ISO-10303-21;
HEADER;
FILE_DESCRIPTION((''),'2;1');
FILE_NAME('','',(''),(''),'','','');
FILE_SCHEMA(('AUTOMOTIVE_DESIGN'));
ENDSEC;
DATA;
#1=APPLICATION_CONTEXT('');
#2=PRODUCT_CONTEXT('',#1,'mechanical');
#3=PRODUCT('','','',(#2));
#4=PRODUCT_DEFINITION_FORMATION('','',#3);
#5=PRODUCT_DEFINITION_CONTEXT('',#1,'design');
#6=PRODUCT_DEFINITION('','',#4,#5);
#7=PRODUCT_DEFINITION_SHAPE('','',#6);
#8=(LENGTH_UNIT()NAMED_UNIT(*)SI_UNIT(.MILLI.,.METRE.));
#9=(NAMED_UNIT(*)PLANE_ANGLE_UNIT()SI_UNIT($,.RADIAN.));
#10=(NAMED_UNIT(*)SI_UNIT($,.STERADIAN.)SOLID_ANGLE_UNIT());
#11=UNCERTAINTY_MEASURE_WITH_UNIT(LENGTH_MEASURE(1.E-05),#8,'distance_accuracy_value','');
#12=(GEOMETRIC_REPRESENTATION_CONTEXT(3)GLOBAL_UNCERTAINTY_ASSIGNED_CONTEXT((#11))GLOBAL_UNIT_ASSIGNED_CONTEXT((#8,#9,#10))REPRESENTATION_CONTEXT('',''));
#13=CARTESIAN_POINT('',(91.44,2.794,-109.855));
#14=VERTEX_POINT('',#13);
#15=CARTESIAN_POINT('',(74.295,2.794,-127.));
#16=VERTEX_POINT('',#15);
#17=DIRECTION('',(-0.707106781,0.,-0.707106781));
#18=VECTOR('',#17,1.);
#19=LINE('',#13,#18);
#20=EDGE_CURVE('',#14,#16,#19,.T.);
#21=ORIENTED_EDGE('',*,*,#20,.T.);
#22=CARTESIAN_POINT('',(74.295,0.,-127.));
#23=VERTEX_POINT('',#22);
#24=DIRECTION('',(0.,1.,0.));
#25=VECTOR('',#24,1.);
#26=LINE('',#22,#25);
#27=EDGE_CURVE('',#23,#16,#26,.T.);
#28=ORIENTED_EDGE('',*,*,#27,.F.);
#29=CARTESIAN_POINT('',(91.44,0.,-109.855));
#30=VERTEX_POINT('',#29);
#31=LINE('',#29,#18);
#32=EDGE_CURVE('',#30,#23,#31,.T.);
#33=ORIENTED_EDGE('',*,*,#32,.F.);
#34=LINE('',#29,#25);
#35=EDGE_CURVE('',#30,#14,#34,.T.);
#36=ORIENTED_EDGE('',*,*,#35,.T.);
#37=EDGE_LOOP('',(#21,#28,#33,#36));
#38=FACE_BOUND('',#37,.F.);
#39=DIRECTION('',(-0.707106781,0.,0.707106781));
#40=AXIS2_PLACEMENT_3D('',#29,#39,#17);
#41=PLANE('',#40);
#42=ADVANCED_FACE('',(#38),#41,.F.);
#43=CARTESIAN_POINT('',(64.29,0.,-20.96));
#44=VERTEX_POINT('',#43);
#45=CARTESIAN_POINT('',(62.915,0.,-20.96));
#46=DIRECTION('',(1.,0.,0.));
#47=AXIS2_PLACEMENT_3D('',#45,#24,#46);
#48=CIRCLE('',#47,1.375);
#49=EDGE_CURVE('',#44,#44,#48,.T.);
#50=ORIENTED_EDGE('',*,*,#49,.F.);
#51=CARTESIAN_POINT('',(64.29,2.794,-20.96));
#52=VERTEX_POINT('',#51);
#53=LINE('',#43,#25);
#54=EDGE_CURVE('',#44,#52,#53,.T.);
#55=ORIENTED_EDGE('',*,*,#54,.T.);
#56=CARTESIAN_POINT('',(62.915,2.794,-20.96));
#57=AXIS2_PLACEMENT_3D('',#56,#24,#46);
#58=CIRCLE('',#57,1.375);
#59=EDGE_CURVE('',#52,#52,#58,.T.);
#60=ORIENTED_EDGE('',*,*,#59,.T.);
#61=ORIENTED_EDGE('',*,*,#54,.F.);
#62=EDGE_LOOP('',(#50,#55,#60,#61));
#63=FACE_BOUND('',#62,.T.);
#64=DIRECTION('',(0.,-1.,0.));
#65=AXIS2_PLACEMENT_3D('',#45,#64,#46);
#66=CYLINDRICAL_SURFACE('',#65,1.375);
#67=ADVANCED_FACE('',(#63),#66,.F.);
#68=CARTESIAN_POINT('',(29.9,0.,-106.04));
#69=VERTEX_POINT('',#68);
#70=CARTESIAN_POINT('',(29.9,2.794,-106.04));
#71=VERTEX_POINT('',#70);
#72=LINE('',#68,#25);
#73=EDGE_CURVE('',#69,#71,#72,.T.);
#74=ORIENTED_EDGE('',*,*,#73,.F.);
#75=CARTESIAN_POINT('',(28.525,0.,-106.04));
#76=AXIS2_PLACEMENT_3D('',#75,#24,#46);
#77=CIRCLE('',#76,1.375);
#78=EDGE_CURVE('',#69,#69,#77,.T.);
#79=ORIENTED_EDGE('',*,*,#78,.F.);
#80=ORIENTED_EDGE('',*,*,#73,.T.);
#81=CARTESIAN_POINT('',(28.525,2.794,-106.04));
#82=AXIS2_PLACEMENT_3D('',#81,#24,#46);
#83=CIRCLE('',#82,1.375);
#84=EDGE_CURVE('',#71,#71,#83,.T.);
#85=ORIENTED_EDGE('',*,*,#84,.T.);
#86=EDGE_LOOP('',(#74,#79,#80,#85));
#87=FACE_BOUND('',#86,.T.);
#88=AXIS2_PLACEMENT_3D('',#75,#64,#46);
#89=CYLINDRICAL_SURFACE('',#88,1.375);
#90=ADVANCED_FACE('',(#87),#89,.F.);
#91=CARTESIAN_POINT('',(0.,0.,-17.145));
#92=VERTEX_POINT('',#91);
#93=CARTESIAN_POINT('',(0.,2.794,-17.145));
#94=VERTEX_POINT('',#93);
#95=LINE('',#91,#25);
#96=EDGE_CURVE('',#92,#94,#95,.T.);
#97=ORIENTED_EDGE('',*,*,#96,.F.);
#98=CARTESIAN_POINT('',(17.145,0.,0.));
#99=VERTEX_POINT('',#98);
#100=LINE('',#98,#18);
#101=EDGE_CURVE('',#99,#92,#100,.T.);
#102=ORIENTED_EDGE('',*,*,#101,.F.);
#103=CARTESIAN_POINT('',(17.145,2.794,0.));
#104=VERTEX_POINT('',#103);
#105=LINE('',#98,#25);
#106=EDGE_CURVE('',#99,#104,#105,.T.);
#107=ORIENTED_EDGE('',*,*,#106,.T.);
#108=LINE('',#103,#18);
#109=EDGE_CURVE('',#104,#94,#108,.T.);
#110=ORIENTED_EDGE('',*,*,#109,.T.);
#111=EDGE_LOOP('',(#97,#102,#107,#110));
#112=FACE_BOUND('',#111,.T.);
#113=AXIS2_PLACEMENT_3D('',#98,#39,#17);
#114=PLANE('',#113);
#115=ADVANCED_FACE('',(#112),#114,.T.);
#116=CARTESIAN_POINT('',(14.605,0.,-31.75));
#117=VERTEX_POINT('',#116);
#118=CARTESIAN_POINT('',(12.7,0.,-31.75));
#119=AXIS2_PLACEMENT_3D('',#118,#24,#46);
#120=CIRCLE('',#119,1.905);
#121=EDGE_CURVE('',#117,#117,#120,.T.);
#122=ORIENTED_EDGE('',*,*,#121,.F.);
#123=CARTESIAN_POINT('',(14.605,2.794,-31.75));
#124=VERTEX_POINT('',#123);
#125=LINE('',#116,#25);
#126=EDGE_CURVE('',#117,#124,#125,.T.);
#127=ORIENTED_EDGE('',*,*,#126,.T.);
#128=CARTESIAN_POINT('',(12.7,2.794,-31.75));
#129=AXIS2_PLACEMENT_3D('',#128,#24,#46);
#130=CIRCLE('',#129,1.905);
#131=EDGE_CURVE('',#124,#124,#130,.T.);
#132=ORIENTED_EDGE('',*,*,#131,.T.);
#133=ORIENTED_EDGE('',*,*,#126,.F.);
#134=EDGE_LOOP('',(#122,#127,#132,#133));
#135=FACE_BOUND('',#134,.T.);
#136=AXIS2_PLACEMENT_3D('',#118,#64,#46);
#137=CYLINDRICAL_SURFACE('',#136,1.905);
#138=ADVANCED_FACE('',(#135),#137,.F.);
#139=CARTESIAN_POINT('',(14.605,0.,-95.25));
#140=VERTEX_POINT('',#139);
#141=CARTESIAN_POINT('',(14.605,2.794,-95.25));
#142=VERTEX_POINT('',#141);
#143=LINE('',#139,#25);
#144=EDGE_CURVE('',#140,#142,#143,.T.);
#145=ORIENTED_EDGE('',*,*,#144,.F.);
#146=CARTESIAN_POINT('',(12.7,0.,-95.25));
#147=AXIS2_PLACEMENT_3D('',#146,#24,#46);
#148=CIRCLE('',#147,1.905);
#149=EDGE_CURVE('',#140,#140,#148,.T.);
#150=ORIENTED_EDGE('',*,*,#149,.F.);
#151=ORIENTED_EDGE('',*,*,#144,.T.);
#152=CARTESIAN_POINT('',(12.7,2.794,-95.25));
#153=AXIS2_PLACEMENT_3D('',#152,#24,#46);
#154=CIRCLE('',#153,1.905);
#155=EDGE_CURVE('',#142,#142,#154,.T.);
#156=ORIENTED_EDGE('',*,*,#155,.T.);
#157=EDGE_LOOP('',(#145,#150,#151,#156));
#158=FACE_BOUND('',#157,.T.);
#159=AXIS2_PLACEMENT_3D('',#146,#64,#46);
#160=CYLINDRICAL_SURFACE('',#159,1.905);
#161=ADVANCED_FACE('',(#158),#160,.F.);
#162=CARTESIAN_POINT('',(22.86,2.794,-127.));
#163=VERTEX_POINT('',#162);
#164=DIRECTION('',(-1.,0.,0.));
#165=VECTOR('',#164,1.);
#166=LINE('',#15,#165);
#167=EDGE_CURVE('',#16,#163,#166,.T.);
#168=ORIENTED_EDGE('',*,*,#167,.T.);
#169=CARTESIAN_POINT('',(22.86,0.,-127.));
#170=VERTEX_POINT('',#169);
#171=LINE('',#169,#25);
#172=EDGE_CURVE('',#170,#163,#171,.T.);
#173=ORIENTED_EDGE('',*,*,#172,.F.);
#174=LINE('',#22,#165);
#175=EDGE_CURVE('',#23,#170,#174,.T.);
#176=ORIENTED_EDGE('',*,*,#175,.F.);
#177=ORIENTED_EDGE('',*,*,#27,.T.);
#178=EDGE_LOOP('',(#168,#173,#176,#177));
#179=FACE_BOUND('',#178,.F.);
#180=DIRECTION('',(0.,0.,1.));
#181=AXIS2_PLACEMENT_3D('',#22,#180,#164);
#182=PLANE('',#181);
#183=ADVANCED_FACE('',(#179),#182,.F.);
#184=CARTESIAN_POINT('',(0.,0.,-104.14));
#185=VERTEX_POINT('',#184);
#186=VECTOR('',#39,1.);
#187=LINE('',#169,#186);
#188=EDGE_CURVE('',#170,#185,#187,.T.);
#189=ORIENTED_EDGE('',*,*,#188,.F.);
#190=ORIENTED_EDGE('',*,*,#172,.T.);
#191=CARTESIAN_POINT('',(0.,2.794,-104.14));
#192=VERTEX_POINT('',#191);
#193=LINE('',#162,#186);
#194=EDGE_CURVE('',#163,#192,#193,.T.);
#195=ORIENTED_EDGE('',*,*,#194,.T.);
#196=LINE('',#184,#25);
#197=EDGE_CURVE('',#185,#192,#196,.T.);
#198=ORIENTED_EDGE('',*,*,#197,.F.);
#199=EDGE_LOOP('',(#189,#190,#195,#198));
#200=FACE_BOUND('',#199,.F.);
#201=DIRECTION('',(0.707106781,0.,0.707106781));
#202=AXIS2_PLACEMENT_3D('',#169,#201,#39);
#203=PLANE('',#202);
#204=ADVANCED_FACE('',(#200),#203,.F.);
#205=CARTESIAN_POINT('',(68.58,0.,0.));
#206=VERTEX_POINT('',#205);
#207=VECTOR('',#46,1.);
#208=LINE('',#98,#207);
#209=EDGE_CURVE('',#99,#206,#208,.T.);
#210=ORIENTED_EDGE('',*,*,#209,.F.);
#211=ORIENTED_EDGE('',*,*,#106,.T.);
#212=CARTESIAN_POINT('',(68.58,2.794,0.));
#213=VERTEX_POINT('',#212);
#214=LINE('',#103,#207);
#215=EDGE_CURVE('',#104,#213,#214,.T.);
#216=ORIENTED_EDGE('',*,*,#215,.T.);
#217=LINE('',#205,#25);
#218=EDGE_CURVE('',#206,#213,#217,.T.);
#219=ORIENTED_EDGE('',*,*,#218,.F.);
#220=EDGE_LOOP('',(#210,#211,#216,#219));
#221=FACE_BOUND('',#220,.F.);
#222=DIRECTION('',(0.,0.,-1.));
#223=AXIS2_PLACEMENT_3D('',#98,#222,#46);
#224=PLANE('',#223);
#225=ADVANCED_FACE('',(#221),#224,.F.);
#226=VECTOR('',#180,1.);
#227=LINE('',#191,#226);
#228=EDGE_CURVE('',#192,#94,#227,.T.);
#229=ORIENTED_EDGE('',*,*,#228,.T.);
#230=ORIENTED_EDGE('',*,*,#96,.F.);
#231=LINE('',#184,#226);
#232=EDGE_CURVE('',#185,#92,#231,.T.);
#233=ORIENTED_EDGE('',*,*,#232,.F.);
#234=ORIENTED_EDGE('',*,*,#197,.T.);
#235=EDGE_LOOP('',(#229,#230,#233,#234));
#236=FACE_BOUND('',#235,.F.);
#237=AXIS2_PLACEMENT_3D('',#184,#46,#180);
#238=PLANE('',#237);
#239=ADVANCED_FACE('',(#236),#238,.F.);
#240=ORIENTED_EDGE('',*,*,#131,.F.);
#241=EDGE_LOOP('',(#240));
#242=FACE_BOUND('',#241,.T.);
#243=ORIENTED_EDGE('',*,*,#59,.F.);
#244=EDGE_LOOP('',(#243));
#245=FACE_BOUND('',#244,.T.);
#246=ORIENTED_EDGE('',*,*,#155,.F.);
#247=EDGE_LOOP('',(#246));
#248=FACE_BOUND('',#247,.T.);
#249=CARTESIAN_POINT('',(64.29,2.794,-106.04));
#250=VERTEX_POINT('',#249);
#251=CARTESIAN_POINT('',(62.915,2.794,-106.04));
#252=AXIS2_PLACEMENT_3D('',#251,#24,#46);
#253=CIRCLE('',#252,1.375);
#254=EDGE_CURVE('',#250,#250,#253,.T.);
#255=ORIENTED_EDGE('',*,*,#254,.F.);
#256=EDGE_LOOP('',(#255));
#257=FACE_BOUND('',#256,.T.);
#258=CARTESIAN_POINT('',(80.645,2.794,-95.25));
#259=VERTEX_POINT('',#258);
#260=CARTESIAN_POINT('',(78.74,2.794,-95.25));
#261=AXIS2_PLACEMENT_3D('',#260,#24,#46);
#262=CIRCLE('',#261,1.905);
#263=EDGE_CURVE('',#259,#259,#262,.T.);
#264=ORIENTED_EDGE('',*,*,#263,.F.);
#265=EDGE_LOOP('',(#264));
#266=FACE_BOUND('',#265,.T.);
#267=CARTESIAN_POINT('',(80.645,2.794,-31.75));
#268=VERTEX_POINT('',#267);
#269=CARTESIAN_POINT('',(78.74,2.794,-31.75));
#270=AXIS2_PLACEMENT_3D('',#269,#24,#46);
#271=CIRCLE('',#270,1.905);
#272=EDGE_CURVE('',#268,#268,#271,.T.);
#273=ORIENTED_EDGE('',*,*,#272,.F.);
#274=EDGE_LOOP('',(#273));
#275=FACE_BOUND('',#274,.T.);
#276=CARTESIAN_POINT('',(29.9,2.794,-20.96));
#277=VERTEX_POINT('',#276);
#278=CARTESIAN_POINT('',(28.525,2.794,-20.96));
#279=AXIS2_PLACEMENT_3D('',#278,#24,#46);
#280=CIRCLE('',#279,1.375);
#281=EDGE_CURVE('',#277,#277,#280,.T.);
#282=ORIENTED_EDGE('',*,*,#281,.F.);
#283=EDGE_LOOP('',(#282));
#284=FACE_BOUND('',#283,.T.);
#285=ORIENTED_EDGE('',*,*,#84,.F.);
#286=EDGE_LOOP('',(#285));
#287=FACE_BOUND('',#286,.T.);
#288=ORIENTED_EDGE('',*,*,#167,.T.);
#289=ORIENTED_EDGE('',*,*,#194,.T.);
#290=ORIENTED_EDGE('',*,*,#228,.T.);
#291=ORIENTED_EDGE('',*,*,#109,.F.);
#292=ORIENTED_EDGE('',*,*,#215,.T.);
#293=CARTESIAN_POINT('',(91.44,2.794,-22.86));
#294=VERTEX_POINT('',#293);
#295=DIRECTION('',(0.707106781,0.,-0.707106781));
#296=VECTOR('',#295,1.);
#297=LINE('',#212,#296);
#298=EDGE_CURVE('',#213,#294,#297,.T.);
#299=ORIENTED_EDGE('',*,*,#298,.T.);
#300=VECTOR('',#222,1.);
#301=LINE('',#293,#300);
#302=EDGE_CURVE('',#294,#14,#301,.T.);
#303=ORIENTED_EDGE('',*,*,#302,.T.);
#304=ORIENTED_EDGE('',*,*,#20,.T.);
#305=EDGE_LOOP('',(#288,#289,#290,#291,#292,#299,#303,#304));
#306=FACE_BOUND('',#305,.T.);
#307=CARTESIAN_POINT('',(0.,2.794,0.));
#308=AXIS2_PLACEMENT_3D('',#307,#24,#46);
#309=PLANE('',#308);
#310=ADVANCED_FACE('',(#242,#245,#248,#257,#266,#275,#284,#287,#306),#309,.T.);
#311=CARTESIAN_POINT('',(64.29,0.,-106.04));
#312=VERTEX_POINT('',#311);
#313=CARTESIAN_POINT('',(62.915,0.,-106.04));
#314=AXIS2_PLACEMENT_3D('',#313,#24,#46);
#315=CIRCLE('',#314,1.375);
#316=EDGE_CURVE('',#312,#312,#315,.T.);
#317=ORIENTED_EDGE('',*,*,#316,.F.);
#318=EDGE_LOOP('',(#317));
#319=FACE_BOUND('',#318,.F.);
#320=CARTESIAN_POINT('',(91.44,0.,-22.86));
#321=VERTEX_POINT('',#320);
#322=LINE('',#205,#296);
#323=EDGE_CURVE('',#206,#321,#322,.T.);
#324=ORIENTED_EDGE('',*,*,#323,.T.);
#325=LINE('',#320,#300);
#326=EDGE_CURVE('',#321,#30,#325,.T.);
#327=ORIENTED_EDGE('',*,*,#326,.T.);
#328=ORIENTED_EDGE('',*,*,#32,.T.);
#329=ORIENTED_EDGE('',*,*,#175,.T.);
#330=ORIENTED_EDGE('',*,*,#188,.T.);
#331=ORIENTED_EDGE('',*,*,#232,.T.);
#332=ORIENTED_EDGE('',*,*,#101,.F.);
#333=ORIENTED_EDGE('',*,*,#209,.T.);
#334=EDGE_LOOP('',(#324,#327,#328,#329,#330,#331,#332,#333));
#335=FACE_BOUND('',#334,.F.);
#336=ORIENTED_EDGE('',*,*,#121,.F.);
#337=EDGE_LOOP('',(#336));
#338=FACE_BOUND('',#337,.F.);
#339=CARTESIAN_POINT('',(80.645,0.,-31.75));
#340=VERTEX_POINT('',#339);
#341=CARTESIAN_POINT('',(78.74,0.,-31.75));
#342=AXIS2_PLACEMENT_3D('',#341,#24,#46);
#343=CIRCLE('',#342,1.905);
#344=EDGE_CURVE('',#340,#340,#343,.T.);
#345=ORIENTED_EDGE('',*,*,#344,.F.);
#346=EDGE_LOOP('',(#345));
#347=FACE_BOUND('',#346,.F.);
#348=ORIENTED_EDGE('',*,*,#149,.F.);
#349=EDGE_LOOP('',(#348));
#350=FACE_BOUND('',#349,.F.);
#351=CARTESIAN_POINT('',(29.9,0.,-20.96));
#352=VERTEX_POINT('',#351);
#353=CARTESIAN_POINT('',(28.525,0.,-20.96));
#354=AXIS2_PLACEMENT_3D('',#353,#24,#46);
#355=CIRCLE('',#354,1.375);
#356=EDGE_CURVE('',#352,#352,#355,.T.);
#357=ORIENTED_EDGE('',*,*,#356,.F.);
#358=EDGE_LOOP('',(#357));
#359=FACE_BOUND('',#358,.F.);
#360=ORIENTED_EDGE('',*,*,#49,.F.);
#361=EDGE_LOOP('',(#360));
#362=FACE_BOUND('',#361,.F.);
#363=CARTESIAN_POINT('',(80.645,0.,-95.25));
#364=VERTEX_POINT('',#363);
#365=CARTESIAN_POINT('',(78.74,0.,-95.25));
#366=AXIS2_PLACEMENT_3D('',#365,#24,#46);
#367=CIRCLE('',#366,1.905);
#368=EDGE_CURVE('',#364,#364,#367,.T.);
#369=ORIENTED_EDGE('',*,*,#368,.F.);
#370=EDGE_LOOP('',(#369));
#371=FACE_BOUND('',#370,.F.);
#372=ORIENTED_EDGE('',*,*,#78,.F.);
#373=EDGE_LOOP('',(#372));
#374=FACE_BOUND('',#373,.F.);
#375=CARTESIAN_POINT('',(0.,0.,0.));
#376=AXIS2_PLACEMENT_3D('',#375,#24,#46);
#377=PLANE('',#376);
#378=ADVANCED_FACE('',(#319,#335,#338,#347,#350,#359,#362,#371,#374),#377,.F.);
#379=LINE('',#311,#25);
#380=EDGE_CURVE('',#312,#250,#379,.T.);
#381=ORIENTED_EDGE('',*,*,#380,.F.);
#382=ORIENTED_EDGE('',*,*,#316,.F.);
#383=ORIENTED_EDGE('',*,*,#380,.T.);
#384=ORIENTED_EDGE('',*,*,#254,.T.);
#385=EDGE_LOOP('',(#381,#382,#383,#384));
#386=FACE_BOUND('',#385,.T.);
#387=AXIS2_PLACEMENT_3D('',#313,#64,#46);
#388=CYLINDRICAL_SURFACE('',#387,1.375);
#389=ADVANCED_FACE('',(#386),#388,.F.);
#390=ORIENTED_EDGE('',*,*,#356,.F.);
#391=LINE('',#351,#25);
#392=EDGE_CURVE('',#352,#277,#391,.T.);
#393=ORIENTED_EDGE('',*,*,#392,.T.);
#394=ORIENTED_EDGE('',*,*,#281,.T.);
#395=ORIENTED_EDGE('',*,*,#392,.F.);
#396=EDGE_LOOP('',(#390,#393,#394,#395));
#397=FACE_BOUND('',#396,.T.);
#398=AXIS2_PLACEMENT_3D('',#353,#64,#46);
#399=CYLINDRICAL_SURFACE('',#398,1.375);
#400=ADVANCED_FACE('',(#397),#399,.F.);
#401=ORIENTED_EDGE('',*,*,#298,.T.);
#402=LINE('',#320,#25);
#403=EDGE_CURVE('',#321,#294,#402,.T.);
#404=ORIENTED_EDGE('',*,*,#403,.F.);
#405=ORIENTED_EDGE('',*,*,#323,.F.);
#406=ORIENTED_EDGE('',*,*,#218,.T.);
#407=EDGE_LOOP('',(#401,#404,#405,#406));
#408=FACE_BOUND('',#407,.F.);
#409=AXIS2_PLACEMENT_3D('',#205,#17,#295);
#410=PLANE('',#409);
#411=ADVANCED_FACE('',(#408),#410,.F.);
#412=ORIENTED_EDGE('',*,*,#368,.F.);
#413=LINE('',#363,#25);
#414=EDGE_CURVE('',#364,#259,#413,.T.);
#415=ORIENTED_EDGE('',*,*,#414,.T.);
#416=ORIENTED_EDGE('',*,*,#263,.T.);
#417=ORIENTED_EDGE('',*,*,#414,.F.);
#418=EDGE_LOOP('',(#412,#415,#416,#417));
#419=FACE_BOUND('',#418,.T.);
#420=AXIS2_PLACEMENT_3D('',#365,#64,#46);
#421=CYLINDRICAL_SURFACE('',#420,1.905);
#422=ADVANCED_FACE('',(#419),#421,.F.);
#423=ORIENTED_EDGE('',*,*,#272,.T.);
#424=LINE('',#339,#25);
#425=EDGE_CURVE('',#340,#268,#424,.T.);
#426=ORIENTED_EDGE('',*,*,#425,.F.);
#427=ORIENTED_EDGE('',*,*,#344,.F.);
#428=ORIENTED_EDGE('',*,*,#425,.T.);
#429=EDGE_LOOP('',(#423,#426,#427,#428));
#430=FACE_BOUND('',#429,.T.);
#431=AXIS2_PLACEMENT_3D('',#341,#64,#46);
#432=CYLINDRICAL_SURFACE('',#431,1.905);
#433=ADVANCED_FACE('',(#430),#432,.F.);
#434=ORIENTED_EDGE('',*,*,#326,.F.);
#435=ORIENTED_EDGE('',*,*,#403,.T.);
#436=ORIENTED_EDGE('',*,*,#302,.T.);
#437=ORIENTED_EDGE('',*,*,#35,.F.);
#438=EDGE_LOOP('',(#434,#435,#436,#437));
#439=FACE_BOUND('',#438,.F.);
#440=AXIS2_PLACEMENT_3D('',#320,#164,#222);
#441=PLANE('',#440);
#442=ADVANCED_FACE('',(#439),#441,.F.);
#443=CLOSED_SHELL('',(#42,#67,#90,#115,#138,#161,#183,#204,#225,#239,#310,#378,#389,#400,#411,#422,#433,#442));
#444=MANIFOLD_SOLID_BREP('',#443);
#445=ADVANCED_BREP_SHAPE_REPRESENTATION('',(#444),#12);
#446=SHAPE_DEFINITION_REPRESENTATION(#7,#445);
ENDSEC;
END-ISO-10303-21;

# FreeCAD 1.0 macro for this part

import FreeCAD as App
import Part
import Sketcher
Q = App.Units.Quantity


def add_polygon(sketch, points):
    """Adds a closed chain of lines whose ends are joined by coincident constraints."""
    first, n = sketch.GeometryCount, len(points)
    for a, b in zip(points, points[1:] + points[:1]):
        sketch.addGeometry(Part.LineSegment(App.Vector(*a, 0), App.Vector(*b, 0)), False)
    for i in range(n):
        sketch.addConstraint(Sketcher.Constraint("Coincident", first + i, 2, first + (i + 1) % n, 1))

doc = App.newDocument("Part")
body = doc.addObject("PartDesign::Body", "Body")

sketch1 = body.newObject("Sketcher::SketchObject", "Sketch")
sketch1.AttachmentSupport = (doc.getObject("XZ_Plane"), [""])
sketch1.MapMode = "FlatFace"
add_polygon(sketch1, [(0, -17.145), (17.145, 0), (68.58, 0), (91.44, -22.86), (91.44, -109.855), (74.295, -127), (22.86, -127), (0, -104.14)])
sketch1.addGeometry(Part.Circle(App.Vector(28.525, -20.96, 0), App.Vector(0, 0, 1), 1.375), False)
sketch1.addGeometry(Part.Circle(App.Vector(12.7, -31.75, 0), App.Vector(0, 0, 1), 1.905), False)
sketch1.addGeometry(Part.Circle(App.Vector(62.915, -20.96, 0), App.Vector(0, 0, 1), 1.375), False)
sketch1.addGeometry(Part.Circle(App.Vector(78.74, -31.75, 0), App.Vector(0, 0, 1), 1.905), False)
sketch1.addGeometry(Part.Circle(App.Vector(12.7, -95.25, 0), App.Vector(0, 0, 1), 1.905), False)
sketch1.addGeometry(Part.Circle(App.Vector(28.525, -106.04, 0), App.Vector(0, 0, 1), 1.375), False)
sketch1.addGeometry(Part.Circle(App.Vector(62.915, -106.04, 0), App.Vector(0, 0, 1), 1.375), False)
sketch1.addGeometry(Part.Circle(App.Vector(78.74, -95.25, 0), App.Vector(0, 0, 1), 1.905), False)
sketch1.addConstraint([
    Sketcher.Constraint("Horizontal", 1),
    Sketcher.Constraint("Vertical", 3),
    Sketcher.Constraint("Horizontal", 5),
    Sketcher.Constraint("Vertical", 7),
    Sketcher.Constraint("Equal", 8, 10),
    Sketcher.Constraint("Equal", 9, 11),
    Sketcher.Constraint("Equal", 11, 12),
    Sketcher.Constraint("Equal", 10, 13),
    Sketcher.Constraint("Equal", 13, 14),
    Sketcher.Constraint("Equal", 12, 15),
    Sketcher.Constraint("PointOnObject", 0, 2, -1),
    Sketcher.Constraint("PointOnObject", 6, 2, -2),
    Sketcher.Constraint("Perpendicular", 0, 2),
    Sketcher.Constraint("Perpendicular", 2, 4),
    Sketcher.Constraint("Perpendicular", 4, 6),
    Sketcher.Constraint("Horizontal", 8, 3, 10, 3),
    Sketcher.Constraint("Horizontal", 9, 3, 11, 3),
    Sketcher.Constraint("Horizontal", 13, 3, 14, 3),
    Sketcher.Constraint("Horizontal", 12, 3, 15, 3),
    Sketcher.Constraint("Vertical", 9, 3, 12, 3),
    Sketcher.Constraint("Vertical", 8, 3, 13, 3),
    Sketcher.Constraint("Vertical", 10, 3, 14, 3),
    Sketcher.Constraint("Vertical", 11, 3, 15, 3),
    Sketcher.Constraint("Equal", 1, 5),
    Sketcher.Constraint("Equal", 3, 7),
    Sketcher.Constraint("DistanceX", -1, 1, 2, 2, Q("3.6 in")),
    Sketcher.Constraint("DistanceY", 2, 2, -1, 1, Q("0.9 in")),
    Sketcher.Constraint("DistanceX", -1, 1, 5, 2, Q("0.9 in")),
    Sketcher.Constraint("Diameter", 8, 2.75),
    Sketcher.Constraint("Diameter", 9, Q("0.15 in")),
    Sketcher.Constraint("DistanceX", -1, 1, 0, 2, Q("0.675 in")),
    Sketcher.Constraint("DistanceY", 4, 2, -1, 1, Q("5 in")),
    Sketcher.Constraint("DistanceX", -1, 1, 9, 3, Q("0.5 in")),
    Sketcher.Constraint("DistanceX", -1, 1, 11, 3, Q("3.1 in")),
    Sketcher.Constraint("DistanceY", 12, 3, 9, 3, Q("2.5 in")),
    Sketcher.Constraint("DistanceY", 9, 3, -1, 1, Q("1.25 in")),
    Sketcher.Constraint("DistanceY", 8, 3, -1, 1, Q("0.8252 in")),
    Sketcher.Constraint("DistanceY", 13, 3, -1, 1, Q("4.1748 in")),
    Sketcher.Constraint("DistanceX", -1, 1, 8, 3, 28.525),
    Sketcher.Constraint("DistanceX", -1, 1, 10, 3, 62.915),
])
pad1 = body.newObject("PartDesign::Pad", "Pad")
pad1.Profile = sketch1
pad1.Length = Q("0.11 in")
pad1.Reversed = True

doc.recompute()
